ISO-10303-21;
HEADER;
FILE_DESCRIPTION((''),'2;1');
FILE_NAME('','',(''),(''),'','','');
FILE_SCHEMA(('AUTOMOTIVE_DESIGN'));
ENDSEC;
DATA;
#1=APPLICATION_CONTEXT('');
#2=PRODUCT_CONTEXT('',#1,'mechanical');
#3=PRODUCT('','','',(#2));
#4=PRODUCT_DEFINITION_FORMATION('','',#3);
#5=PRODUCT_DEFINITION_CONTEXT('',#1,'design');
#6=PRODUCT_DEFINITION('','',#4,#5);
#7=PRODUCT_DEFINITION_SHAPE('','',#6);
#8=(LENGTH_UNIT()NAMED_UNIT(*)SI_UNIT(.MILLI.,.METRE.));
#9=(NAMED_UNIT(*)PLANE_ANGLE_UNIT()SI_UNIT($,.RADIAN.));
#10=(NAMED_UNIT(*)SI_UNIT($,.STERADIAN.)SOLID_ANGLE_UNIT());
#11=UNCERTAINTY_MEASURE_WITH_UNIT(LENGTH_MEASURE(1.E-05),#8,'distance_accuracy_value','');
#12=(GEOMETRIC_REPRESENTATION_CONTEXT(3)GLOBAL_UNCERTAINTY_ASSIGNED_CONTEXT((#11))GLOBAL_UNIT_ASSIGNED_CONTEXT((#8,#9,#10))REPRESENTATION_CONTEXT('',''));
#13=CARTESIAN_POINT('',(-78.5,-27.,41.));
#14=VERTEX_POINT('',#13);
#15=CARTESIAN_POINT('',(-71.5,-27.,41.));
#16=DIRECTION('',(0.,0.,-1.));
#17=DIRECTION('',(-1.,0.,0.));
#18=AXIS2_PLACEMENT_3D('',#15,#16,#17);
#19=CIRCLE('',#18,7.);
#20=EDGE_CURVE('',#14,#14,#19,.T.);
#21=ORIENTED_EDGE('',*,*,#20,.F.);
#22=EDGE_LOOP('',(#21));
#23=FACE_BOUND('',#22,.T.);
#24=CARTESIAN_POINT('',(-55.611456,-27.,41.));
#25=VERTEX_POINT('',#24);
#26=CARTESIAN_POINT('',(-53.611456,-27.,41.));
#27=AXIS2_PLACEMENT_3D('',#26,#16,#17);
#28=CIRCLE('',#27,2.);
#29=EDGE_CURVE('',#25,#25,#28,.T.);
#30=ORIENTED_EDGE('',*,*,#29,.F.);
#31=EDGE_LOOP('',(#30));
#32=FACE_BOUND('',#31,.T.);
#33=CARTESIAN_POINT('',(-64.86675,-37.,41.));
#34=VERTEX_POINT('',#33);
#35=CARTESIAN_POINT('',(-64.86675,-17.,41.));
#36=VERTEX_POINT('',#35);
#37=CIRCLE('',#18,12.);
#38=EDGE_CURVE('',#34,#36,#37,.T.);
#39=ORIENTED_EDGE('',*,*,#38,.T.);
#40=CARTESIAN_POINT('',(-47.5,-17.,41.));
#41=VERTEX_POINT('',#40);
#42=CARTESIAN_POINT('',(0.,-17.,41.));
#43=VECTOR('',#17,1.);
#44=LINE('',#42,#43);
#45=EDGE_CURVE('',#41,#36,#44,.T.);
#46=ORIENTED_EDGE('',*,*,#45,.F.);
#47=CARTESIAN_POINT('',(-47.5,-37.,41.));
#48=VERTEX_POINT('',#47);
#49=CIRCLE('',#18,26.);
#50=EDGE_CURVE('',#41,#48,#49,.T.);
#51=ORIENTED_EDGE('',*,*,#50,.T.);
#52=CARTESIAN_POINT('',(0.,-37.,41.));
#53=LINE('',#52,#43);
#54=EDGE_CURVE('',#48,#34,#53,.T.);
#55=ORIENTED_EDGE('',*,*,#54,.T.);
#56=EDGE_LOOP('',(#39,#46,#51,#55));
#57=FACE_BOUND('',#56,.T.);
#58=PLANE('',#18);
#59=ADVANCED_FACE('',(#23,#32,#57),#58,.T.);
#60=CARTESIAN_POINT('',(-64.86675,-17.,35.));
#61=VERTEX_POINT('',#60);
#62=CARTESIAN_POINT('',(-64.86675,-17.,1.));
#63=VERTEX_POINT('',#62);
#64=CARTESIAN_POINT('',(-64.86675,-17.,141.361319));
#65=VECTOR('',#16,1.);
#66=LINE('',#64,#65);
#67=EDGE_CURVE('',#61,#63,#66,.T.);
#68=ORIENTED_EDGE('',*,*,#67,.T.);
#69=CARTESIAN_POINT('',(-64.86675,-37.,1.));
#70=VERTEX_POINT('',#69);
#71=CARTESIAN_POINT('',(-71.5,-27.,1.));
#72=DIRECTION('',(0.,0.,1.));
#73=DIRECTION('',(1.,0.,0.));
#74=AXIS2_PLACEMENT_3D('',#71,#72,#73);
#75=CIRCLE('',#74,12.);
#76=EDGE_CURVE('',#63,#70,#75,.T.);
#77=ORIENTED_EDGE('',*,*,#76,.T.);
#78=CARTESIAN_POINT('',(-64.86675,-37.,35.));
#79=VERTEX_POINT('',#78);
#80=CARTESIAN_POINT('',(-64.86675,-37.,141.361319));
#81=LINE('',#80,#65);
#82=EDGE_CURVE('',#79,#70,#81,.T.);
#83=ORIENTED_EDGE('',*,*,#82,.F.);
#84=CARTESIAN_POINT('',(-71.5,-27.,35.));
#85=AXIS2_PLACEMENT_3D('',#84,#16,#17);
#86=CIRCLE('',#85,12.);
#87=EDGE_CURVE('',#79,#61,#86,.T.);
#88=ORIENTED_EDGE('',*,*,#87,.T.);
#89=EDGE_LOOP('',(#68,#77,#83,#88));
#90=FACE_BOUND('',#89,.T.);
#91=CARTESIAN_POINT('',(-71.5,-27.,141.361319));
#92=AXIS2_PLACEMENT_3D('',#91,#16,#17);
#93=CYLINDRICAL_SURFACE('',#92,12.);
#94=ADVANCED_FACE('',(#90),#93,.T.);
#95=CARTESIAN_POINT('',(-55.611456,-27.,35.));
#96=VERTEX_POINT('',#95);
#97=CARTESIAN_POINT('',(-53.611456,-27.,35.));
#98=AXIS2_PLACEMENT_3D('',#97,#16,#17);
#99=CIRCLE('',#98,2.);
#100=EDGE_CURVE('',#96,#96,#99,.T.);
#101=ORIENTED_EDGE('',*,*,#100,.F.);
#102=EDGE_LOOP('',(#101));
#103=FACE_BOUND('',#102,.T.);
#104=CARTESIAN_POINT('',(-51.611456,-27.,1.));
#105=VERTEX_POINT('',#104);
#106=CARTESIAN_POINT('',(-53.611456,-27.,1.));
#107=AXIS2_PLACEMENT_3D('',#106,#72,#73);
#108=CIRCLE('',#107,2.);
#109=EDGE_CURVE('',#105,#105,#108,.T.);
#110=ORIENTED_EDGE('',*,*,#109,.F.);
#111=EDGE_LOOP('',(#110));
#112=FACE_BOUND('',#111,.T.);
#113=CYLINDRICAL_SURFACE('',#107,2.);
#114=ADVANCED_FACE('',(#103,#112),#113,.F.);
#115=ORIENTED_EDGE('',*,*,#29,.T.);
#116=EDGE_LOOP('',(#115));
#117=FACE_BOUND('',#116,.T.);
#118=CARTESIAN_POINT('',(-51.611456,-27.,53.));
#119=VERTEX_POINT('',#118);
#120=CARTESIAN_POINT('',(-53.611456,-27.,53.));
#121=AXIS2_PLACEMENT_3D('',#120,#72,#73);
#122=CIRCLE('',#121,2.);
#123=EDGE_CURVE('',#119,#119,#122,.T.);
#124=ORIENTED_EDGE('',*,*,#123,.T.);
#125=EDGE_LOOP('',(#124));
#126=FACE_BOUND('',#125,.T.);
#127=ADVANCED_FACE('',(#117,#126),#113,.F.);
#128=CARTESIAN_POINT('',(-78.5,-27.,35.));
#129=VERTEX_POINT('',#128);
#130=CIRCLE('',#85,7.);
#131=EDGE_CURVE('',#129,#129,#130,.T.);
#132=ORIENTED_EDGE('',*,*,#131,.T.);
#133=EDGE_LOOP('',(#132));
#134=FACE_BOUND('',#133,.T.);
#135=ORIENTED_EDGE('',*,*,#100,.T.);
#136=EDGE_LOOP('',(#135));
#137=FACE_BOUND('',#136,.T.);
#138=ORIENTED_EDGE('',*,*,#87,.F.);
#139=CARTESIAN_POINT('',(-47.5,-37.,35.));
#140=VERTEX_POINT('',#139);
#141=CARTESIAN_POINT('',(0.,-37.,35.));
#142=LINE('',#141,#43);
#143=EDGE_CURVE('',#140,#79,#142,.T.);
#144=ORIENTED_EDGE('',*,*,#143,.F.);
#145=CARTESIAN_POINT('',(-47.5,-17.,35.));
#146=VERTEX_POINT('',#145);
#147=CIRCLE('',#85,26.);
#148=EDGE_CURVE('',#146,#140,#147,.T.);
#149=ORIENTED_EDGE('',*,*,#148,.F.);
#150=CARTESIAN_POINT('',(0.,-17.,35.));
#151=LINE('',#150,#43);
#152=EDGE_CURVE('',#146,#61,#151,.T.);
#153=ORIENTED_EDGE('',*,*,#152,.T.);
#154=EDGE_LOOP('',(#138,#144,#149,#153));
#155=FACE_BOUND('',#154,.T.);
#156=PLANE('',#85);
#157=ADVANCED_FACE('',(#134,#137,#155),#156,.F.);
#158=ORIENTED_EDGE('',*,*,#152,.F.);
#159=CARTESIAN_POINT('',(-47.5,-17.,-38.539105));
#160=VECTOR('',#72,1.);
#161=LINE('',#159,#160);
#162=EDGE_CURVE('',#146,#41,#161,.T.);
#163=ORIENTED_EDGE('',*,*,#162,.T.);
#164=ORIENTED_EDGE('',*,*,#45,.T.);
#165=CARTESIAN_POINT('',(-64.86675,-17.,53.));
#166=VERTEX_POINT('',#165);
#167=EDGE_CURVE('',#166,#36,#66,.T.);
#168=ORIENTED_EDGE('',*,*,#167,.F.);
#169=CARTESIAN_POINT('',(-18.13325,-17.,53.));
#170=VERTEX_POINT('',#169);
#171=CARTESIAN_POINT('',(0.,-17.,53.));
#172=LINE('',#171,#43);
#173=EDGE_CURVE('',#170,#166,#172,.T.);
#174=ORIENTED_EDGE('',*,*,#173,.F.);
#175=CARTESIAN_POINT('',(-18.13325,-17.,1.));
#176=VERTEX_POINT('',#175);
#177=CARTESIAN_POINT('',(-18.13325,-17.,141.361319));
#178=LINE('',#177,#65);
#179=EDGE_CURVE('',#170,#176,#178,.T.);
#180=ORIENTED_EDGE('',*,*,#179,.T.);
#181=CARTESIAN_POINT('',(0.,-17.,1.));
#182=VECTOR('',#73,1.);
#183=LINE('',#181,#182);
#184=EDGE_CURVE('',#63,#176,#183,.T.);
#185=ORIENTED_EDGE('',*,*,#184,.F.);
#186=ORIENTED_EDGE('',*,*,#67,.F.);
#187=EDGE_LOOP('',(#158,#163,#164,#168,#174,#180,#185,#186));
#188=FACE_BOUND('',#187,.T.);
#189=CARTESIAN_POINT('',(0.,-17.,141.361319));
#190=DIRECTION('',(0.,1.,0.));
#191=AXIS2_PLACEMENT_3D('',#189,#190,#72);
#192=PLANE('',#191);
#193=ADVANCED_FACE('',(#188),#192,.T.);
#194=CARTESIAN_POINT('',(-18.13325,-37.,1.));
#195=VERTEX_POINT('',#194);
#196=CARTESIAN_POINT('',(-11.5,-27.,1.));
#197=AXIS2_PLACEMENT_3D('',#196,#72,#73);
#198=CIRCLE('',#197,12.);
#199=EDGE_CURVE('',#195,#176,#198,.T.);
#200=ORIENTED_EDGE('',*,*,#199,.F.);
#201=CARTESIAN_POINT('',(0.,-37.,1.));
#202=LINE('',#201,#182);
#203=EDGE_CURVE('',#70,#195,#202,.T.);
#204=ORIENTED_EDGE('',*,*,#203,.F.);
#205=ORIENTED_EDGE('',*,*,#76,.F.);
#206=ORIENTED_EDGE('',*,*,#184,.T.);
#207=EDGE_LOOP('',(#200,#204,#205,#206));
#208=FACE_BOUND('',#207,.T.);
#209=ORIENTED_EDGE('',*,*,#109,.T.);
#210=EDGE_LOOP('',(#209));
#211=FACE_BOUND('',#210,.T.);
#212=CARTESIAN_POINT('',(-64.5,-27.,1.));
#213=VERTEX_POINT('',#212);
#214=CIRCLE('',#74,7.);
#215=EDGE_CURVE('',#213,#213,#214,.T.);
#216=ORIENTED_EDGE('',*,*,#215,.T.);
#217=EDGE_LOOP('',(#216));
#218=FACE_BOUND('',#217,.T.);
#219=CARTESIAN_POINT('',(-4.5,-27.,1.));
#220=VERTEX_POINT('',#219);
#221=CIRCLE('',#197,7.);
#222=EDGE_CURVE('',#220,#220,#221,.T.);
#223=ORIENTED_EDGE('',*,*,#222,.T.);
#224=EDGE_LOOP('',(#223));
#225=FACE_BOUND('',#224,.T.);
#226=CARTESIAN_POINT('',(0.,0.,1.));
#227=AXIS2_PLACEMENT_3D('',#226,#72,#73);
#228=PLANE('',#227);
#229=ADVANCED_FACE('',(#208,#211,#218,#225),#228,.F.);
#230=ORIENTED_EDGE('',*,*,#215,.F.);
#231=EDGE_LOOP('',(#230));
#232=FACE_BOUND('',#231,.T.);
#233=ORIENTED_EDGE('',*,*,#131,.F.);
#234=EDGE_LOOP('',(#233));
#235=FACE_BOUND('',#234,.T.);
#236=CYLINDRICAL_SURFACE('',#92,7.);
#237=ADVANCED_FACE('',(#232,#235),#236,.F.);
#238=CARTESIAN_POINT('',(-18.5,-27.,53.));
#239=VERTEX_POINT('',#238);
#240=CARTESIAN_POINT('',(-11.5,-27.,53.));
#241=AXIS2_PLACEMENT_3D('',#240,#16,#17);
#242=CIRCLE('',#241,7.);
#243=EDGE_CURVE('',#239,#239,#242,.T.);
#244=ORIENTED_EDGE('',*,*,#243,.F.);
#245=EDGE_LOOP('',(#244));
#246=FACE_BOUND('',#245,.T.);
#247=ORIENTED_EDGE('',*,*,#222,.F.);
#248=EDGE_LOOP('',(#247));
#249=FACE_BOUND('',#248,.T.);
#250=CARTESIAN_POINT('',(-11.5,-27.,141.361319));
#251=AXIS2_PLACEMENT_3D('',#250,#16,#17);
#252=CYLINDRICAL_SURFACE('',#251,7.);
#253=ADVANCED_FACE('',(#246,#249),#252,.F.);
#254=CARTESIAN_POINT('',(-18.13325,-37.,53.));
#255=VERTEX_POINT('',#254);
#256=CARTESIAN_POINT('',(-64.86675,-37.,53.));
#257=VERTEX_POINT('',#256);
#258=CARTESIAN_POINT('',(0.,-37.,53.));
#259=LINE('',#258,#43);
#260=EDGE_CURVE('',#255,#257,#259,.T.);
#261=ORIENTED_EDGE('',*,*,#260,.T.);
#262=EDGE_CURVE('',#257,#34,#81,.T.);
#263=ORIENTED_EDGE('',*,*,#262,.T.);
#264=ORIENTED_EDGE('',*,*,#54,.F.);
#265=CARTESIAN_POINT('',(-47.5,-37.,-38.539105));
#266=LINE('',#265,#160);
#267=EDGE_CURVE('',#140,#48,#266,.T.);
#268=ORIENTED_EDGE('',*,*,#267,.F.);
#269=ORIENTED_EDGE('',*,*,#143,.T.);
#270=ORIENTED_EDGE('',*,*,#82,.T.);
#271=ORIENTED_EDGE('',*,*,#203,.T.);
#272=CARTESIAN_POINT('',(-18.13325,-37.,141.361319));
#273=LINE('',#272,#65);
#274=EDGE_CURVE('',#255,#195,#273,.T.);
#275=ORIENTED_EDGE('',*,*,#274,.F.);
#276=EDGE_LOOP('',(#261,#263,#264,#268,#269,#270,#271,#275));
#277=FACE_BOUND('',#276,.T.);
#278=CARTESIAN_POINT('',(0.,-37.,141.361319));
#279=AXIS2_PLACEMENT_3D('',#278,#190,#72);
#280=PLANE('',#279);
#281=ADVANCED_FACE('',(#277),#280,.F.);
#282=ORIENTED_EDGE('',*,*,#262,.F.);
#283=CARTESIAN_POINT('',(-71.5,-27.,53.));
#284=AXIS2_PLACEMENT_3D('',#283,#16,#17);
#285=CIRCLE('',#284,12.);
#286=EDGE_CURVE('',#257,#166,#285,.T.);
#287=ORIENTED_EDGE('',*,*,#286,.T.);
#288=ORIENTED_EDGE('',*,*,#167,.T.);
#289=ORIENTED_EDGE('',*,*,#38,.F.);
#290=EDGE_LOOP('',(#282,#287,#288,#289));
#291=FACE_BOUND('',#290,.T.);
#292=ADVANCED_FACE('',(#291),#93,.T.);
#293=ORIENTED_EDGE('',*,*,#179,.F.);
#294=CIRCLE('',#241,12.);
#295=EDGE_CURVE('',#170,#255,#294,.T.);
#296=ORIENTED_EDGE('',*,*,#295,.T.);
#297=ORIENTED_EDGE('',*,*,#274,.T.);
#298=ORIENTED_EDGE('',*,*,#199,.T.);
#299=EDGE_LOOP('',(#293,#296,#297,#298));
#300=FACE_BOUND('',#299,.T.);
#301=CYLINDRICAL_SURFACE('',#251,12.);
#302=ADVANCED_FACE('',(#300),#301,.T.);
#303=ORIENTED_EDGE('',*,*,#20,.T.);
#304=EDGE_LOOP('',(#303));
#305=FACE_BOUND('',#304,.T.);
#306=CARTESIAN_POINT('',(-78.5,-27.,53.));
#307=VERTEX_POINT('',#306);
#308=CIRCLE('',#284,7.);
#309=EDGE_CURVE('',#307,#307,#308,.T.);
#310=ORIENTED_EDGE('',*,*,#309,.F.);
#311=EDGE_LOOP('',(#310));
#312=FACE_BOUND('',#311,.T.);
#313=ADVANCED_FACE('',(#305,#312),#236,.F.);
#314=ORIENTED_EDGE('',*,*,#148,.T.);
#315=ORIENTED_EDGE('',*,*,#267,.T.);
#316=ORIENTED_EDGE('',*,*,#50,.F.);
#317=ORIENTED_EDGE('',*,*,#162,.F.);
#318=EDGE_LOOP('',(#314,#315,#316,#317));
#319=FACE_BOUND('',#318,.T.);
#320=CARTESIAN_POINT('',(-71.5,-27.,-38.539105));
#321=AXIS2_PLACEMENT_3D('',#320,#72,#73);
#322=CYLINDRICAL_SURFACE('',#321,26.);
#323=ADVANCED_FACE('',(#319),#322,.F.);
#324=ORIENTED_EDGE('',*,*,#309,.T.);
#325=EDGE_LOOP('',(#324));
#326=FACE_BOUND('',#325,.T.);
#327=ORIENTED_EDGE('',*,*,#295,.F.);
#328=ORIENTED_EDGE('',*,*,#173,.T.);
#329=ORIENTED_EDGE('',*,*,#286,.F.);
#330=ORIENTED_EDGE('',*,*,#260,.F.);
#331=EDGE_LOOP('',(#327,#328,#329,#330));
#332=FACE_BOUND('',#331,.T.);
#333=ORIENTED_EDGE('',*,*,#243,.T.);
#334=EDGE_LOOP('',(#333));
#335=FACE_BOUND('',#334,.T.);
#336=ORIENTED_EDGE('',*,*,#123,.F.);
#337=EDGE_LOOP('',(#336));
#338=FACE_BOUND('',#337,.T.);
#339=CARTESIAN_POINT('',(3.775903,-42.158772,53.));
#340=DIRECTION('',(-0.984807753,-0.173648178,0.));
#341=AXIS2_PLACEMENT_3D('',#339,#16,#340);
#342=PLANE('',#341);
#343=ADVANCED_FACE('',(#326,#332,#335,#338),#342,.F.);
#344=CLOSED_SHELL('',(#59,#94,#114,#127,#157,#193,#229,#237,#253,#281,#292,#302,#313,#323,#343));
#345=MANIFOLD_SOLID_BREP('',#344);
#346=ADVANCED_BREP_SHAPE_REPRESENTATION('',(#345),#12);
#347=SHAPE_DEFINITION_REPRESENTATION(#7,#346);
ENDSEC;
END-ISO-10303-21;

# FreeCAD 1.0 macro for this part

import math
import FreeCAD as App
import Part
import Sketcher

V = App.Vector
Q = App.Units.Quantity

doc = App.newDocument("Part")
body = doc.addObject("PartDesign::Body", "Body")

# Sketch on XY plane
sketch1 = doc.addObject("Sketcher::SketchObject", "Sketch")
body.addObject(sketch1)
sketch1.AttachmentSupport = (doc.XY_Plane, [""])
sketch1.MapMode = "FlatFace"
sketch1.AttachmentOffset = App.Placement(V(0, 0, 1), App.Rotation())
sketch1.addGeometry(Part.ArcOfCircle(Part.Circle(V(-72, -27, 0), V(0, 0, 1), 12), math.radians(56), math.radians(304)), False)
sketch1.addGeometry(Part.LineSegment(V(-65, -37, 0), V(-18, -37, 0)), False)
sketch1.addGeometry(Part.ArcOfCircle(Part.Circle(V(-12, -27, 0), V(0, 0, 1), 12), math.radians(-124), math.radians(124)), False)
sketch1.addGeometry(Part.LineSegment(V(-18, -17, 0), V(-65, -17, 0)), False)
sketch1.addGeometry(Part.Circle(V(-72, -27, 0), V(0, 0, 1), 7), False)
sketch1.addGeometry(Part.Circle(V(-12, -27, 0), V(0, 0, 1), 7), False)
sketch1.addConstraint(Sketcher.Constraint("Coincident", 0, 2, 1, 1))
sketch1.addConstraint(Sketcher.Constraint("Coincident", 1, 2, 2, 1))
sketch1.addConstraint(Sketcher.Constraint("Coincident", 2, 2, 3, 1))
sketch1.addConstraint(Sketcher.Constraint("Coincident", 3, 2, 0, 1))
sketch1.addConstraint(Sketcher.Constraint("Horizontal", 1))
sketch1.addConstraint(Sketcher.Constraint("Horizontal", 3))
sketch1.addConstraint(Sketcher.Constraint("Coincident", 4, 3, 0, 3))
sketch1.addConstraint(Sketcher.Constraint("Coincident", 5, 3, 2, 3))
sketch1.addConstraint(Sketcher.Constraint("Equal", 0, 2))
sketch1.addConstraint(Sketcher.Constraint("Equal", 4, 5))
sketch1.addConstraint(Sketcher.Constraint("Horizontal", 0, 3, 2, 3))
sketch1.addConstraint(Sketcher.Constraint("Vertical", 1, 2, 2, 2))
sketch1.addConstraint(Sketcher.Constraint("Diameter", 4, Q("14 mm")))
sketch1.addConstraint(Sketcher.Constraint("Radius", 0, Q("12 mm")))
sketch1.addConstraint(Sketcher.Constraint("DistanceY", 0, 3, -1, 1, Q("27 mm")))
sketch1.addConstraint(Sketcher.Constraint("DistanceY", 0, 2, -1, 1, Q("37 mm")))
sketch1.addConstraint(Sketcher.Constraint("DistanceX", 0, 3, 2, 3, Q("60 mm")))
sketch1.addConstraint(Sketcher.Constraint("DistanceX", 0, 3, -1, 1, Q("71.5 mm")))
pad1 = doc.addObject("PartDesign::Pad", "Pad")
body.addObject(pad1)
pad1.Profile = sketch1
pad1.Length = 52

# Sketch on XY plane
sketch2 = doc.addObject("Sketcher::SketchObject", "Sketch001")
body.addObject(sketch2)
sketch2.AttachmentSupport = (doc.XY_Plane, [""])
sketch2.MapMode = "FlatFace"
sketch2.AttachmentOffset = App.Placement(V(0, 0, 35), App.Rotation())
sketch2.addGeometry(Part.Circle(V(-72, -27, 0), V(0, 0, 1), 26), False)
sketch2.addConstraint(Sketcher.Constraint("Diameter", 0, Q("52 mm")))
sketch2.addConstraint(Sketcher.Constraint("DistanceY", 0, 3, -1, 1, Q("27 mm")))
sketch2.addConstraint(Sketcher.Constraint("DistanceX", 0, 3, -1, 1, Q("71.5 mm")))
pocket1 = doc.addObject("PartDesign::Pocket", "Pocket")
body.addObject(pocket1)
pocket1.Profile = sketch2
pocket1.Length = 6
pocket1.Reversed = True

# Sketch on XY plane
sketch3 = doc.addObject("Sketcher::SketchObject", "Sketch002")
body.addObject(sketch3)
sketch3.AttachmentSupport = (doc.XY_Plane, [""])
sketch3.MapMode = "FlatFace"
sketch3.AttachmentOffset = App.Placement(V(0, 0, 35), App.Rotation())
sketch3.addGeometry(Part.Circle(V(-53.6, -27, 0), V(0, 0, 1), 2), False)
sketch3.addConstraint(Sketcher.Constraint("Diameter", 0, Q("4 mm")))
sketch3.addConstraint(Sketcher.Constraint("DistanceY", 0, 3, -1, 1, Q("27 mm")))
sketch3.addConstraint(Sketcher.Constraint("DistanceX", 0, 3, -1, 1, Q("53.611456 mm")))
pocket2 = doc.addObject("PartDesign::Pocket", "Pocket001")
body.addObject(pocket2)
pocket2.Profile = sketch3
pocket2.Type = "ThroughAll"
pocket2.Midplane = True

doc.recompute()
